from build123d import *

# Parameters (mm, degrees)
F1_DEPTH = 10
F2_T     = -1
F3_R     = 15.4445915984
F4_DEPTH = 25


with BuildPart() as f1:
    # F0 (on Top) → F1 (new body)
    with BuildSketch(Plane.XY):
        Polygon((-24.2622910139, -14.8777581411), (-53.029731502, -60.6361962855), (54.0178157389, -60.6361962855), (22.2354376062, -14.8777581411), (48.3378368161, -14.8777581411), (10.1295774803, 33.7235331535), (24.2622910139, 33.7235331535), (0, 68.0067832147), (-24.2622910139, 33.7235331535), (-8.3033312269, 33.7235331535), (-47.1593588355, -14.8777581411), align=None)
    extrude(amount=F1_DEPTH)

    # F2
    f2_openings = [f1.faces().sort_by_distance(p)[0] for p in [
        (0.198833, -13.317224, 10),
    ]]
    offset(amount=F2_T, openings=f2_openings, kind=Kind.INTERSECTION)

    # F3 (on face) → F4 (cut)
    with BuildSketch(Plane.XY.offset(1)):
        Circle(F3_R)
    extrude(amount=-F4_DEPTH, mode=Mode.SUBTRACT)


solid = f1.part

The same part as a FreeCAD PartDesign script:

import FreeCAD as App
import Part
import Sketcher


def faces_at(feature, points):
    """Names of the faces that lie closest to the given points."""
    faces = feature.Shape.Faces
    near = lambda p: min(range(len(faces)), key=lambda i: faces[i].distToShape(Part.Vertex(*p))[0])
    return sorted({f"Face{near(p) + 1}" for p in points})


def add_polygon(sketch, points):
    """Adds a closed chain of lines whose ends are joined by coincident constraints."""
    first, n = sketch.GeometryCount, len(points)
    for a, b in zip(points, points[1:] + points[:1]):
        sketch.addGeometry(Part.LineSegment(App.Vector(*a, 0), App.Vector(*b, 0)), False)
    for i in range(n):
        sketch.addConstraint(Sketcher.Constraint("Coincident", first + i, 2, first + (i + 1) % n, 1))

doc = App.newDocument("Part")
body = doc.addObject("PartDesign::Body", "Body")

sketch1 = body.newObject("Sketcher::SketchObject", "Sketch")
sketch1.AttachmentSupport = (doc.getObject("XY_Plane"), [""])
sketch1.MapMode = "FlatFace"
add_polygon(sketch1, [(-24, -15), (-53, -61), (54, -61), (22, -15), (48, -15), (10, 34), (24, 34), (0, 68), (-24, 34), (-8, 34), (-47, -15)])
sketch1.addConstraint(Sketcher.Constraint("Horizontal", 1))
sketch1.addConstraint(Sketcher.Constraint("Horizontal", 3))
sketch1.addConstraint(Sketcher.Constraint("Horizontal", 5))
sketch1.addConstraint(Sketcher.Constraint("Horizontal", 8))
sketch1.addConstraint(Sketcher.Constraint("Horizontal", 10))
sketch1.addConstraint(Sketcher.Constraint("Symmetric", 5, 2, 7, 2, -2))
sketch1.addConstraint(Sketcher.Constraint("PointOnObject", 6, 2, -2))
sketch1.addConstraint(Sketcher.Constraint("Horizontal", 3, 2, 9, 2))
sketch1.addConstraint(Sketcher.Constraint("Vertical", 7, 2, 10, 2))
sketch1.addConstraint(Sketcher.Constraint("Distance", 6, 42.0))
sketch1.addConstraint(Sketcher.Constraint("DistanceX", 3, 1, 3, 2, 26.102399))
sketch1.addConstraint(Sketcher.Constraint("DistanceX", 8, 1, 8, 2, 15.95896))
sketch1.addConstraint(Sketcher.Constraint("Distance", 0, 54.04998))
sketch1.addConstraint(Sketcher.Constraint("DistanceX", 1, 1, 1, 2, 107.047547))
sketch1.addConstraint(Sketcher.Constraint("DistanceX", 5, 1, 5, 2, 14.132714))
sketch1.addConstraint(Sketcher.Constraint("DistanceX", 10, 1, 10, 2, 22.897068))
sketch1.addConstraint(Sketcher.Constraint("DistanceX", 0, 2, -1, 1, 53.029732))
sketch1.addConstraint(Sketcher.Constraint("DistanceY", 2, 2, -1, 1, 14.877758))
sketch1.addConstraint(Sketcher.Constraint("DistanceX", -1, 1, 5, 2, 24.262291))
sketch1.addConstraint(Sketcher.Constraint("DistanceX", 2, 2, 1, 2, 31.782378))
sketch1.addConstraint(Sketcher.Constraint("DistanceY", 2, 2, 4, 2, 48.601291))
pad1 = body.newObject("PartDesign::Pad", "Pad")
pad1.Profile = sketch1
pad1.Length = 10
doc.recompute()

thickness = body.newObject("PartDesign::Thickness", "Thickness")
thickness.Base = (pad1, faces_at(pad1, [(0.494, 3.685, 10)]))
thickness.Value = 1
thickness.Reversed = True
thickness.Join = "Intersection"

sketch2 = body.newObject("Sketcher::SketchObject", "Sketch001")
sketch2.AttachmentSupport = (doc.getObject("XY_Plane"), [""])
sketch2.MapMode = "FlatFace"
sketch2.AttachmentOffset = App.Placement(App.Vector(0, 0, 1), App.Rotation())
sketch2.addGeometry(Part.Circle(App.Vector(0, 0, 0), App.Vector(0, 0, 1), 15), False)
sketch2.addConstraint(Sketcher.Constraint("Coincident", 0, 3, -1, 1))
sketch2.addConstraint(Sketcher.Constraint("Diameter", 0, 30.889183))
pocket1 = body.newObject("PartDesign::Pocket", "Pocket")
pocket1.Profile = sketch2
pocket1.Length = 25

doc.recompute()
